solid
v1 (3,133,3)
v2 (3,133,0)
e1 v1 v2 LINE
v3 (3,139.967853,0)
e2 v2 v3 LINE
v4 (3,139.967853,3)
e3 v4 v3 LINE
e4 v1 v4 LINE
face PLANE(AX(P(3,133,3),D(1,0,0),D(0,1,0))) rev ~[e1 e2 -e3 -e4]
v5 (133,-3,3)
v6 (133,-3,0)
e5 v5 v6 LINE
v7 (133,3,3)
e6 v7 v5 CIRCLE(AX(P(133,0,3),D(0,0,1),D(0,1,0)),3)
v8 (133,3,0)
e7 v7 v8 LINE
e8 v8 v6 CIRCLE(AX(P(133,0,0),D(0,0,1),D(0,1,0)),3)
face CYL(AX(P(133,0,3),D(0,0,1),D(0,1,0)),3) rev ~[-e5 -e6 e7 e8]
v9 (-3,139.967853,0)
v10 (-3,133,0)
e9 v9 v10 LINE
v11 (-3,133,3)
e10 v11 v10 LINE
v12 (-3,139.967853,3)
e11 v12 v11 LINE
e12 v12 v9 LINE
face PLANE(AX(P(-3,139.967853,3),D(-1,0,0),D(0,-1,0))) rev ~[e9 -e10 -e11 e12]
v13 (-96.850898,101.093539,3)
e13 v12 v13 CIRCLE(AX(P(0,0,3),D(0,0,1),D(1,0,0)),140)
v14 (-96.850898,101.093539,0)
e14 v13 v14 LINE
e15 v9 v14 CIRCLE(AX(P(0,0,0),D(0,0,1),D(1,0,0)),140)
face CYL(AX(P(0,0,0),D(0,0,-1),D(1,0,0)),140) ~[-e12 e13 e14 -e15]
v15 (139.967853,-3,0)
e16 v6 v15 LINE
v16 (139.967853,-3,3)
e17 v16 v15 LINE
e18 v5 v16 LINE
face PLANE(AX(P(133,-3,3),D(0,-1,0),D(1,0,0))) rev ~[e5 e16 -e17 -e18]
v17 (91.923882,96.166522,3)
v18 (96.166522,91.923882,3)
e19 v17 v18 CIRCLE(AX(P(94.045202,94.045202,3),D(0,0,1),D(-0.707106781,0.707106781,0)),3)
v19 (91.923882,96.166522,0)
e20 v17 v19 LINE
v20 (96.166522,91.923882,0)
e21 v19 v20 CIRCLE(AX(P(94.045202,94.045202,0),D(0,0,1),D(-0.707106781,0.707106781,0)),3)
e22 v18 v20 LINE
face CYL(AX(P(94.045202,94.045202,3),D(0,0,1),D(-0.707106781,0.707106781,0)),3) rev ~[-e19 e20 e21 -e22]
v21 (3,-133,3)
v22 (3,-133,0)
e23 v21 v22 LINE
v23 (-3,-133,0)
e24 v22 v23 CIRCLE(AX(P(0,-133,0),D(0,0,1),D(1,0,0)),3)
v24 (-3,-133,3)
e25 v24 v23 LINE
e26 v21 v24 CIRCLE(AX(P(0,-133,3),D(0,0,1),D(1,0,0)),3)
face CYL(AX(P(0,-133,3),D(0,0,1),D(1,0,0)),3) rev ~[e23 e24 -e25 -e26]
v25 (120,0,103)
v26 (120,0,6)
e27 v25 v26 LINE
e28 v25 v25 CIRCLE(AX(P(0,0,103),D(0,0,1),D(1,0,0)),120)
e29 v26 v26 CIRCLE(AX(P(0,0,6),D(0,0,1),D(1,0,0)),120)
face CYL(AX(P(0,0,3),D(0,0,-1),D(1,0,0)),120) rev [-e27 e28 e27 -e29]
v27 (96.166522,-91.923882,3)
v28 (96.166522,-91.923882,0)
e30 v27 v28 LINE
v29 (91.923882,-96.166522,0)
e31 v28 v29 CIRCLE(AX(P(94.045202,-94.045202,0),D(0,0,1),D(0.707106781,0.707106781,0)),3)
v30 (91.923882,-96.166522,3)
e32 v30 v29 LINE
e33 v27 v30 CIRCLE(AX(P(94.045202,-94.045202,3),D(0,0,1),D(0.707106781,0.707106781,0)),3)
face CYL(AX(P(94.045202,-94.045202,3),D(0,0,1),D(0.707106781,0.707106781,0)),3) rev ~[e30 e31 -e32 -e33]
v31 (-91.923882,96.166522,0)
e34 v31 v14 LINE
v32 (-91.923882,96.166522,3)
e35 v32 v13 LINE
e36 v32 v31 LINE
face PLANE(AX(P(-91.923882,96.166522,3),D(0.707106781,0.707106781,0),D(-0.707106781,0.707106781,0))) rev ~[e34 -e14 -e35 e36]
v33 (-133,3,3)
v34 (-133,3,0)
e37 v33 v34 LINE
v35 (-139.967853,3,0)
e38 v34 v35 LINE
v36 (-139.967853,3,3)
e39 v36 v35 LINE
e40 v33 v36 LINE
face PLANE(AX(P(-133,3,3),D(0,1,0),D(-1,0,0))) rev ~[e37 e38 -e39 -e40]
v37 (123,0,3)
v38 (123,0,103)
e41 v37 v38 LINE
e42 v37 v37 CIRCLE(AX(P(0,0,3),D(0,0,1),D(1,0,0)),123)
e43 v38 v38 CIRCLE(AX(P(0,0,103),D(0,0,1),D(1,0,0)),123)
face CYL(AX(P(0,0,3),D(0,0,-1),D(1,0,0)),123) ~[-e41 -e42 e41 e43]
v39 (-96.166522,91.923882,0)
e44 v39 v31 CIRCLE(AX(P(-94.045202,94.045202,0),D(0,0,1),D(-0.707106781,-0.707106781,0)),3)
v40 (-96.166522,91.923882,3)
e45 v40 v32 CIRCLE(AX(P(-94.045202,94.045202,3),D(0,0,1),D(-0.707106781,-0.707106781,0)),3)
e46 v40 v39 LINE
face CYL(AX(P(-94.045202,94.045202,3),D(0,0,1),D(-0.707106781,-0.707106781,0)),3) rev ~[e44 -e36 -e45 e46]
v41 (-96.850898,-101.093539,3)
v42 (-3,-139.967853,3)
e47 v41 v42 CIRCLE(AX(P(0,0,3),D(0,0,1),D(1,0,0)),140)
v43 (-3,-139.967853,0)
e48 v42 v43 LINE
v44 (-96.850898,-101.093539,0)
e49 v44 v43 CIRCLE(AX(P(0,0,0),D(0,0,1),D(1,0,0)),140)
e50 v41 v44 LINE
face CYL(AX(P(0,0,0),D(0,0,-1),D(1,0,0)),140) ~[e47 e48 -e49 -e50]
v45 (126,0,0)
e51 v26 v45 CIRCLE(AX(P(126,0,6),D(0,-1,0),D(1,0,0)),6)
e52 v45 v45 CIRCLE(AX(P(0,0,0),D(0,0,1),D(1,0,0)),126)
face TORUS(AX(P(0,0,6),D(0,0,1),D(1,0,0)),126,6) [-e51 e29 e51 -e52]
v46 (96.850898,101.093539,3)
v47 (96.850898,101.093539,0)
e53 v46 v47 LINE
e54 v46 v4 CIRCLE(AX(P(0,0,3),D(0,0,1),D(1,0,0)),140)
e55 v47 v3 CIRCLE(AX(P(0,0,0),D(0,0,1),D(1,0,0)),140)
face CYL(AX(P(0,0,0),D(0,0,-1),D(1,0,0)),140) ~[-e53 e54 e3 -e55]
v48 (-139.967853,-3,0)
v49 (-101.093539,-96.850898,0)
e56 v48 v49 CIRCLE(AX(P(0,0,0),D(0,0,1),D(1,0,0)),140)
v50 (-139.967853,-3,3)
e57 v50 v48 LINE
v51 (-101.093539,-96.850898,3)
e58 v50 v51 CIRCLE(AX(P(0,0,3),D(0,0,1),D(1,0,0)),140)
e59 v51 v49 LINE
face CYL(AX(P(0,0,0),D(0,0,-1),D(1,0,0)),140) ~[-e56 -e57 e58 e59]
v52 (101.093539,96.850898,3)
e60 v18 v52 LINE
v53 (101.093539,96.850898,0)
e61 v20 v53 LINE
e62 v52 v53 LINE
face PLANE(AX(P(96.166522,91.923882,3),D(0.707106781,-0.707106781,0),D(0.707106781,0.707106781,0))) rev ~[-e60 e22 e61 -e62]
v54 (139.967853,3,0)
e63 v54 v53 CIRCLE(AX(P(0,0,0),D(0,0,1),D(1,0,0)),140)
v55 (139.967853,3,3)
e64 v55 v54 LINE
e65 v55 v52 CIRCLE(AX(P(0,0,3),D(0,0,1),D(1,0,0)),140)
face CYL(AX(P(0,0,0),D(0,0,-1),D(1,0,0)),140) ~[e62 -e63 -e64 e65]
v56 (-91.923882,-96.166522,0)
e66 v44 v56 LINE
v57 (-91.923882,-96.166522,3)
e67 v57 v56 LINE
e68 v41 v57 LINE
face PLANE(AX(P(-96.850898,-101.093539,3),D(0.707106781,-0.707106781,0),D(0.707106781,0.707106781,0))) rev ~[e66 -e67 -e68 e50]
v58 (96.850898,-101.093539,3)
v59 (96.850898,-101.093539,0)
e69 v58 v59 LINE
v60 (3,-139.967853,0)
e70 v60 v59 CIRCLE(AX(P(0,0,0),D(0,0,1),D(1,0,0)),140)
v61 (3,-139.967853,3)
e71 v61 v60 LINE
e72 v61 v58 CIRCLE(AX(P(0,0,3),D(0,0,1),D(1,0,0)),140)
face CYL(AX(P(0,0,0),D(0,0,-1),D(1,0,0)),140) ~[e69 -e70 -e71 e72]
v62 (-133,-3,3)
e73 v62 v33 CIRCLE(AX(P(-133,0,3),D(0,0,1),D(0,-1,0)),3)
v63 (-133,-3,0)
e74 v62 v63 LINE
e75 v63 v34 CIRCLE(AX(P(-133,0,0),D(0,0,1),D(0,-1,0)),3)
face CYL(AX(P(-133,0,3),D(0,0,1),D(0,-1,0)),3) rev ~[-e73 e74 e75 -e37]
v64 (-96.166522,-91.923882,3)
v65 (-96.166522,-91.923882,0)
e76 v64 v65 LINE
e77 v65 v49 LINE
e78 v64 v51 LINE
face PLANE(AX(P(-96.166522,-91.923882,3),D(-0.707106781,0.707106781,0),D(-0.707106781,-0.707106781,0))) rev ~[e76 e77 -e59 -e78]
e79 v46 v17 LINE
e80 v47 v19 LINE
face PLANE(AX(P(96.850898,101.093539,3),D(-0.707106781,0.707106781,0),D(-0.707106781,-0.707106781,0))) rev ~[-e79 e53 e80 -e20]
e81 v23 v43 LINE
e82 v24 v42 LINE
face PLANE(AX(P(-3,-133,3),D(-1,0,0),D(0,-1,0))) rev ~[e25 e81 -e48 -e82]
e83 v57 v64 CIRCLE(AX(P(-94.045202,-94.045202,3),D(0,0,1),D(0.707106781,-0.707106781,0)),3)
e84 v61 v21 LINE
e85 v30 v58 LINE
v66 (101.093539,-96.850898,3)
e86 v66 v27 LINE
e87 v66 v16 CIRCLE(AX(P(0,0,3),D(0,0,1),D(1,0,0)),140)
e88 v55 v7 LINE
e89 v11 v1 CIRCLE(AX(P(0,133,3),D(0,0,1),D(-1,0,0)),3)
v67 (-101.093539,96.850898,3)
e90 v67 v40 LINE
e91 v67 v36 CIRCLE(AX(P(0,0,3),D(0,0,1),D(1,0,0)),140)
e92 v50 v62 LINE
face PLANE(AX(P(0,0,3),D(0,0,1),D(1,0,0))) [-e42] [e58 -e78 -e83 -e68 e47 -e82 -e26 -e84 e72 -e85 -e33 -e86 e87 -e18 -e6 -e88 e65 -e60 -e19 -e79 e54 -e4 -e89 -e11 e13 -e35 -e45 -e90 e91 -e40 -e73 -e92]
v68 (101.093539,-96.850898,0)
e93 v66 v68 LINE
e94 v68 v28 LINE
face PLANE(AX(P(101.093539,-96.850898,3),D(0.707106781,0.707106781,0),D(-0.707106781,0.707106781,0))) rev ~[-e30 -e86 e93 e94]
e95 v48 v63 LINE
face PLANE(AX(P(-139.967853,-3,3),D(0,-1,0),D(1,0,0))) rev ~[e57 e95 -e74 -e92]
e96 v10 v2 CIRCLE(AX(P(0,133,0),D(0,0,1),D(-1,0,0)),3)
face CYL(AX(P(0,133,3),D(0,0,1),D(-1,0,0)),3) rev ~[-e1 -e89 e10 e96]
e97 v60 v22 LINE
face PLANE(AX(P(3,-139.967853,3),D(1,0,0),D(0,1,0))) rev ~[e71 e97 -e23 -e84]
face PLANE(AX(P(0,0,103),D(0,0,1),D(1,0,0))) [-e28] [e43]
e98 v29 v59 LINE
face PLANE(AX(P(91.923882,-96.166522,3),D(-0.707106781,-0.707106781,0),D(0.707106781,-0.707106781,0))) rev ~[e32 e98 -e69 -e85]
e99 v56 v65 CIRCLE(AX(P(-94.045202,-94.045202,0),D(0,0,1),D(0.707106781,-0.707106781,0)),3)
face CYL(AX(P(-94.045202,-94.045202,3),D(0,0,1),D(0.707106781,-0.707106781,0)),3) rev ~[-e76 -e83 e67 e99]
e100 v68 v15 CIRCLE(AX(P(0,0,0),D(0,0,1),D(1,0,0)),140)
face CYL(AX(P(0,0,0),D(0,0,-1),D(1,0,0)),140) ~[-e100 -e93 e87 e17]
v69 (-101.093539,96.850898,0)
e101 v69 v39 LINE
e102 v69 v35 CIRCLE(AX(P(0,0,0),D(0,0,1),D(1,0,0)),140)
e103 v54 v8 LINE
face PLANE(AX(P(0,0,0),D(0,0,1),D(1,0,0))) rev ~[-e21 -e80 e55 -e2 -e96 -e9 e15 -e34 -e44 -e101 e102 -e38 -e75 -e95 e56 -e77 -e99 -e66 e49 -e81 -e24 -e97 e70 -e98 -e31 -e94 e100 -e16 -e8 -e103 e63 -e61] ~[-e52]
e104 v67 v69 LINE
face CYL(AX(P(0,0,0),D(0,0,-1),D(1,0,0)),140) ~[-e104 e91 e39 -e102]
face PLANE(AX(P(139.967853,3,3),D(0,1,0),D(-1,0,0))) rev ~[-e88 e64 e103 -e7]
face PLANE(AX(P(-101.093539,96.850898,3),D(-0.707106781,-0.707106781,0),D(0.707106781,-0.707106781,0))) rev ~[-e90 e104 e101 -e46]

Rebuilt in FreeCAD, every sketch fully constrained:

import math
import FreeCAD as App
import Part
import Sketcher


def edges_at(feature, points):
    """Names of the edges that pass closest to the given points."""
    edges = feature.Shape.Edges
    near = lambda p: min(range(len(edges)), key=lambda i: edges[i].distToShape(Part.Vertex(*p))[0])
    return sorted({f"Edge{near(p) + 1}" for p in points})

doc = App.newDocument("Part")
body = doc.addObject("PartDesign::Body", "Body")

# Sketch on XY plane
sketch1 = body.newObject("Sketcher::SketchObject", "Sketch")
sketch1.AttachmentSupport = (doc.getObject("XY_Plane"), [""])
sketch1.MapMode = "FlatFace"
sketch1.addGeometry(Part.Circle(App.Vector(0, 0, 0), App.Vector(0, 0, 1), 140), False)
sketch1.addGeometry(Part.Circle(App.Vector(0, 0, 0), App.Vector(0, 0, 1), 120), False)
sketch1.addConstraint(Sketcher.Constraint("Coincident", 0, 3, -1, 1))
sketch1.addConstraint(Sketcher.Constraint("Coincident", 1, 3, -1, 1))
sketch1.addConstraint(Sketcher.Constraint("Diameter", 0, 280.0))
sketch1.addConstraint(Sketcher.Constraint("Diameter", 1, 240.0))
pad1 = body.newObject("PartDesign::Pad", "Pad")
pad1.Profile = sketch1
pad1.Length = 3

# Sketch on XY plane
sketch2 = body.newObject("Sketcher::SketchObject", "Sketch001")
sketch2.AttachmentSupport = (doc.getObject("XY_Plane"), [""])
sketch2.MapMode = "FlatFace"
sketch2.AttachmentOffset = App.Placement(App.Vector(0, 0, 3), App.Rotation())
sketch2.addGeometry(Part.Circle(App.Vector(0, 0, 0), App.Vector(0, 0, 1), 123), False)
sketch2.addGeometry(Part.Circle(App.Vector(0, 0, 0), App.Vector(0, 0, 1), 120), False)
sketch2.addConstraint(Sketcher.Constraint("Coincident", 0, 3, -1, 1))
sketch2.addConstraint(Sketcher.Constraint("Coincident", 1, 3, -1, 1))
sketch2.addConstraint(Sketcher.Constraint("Diameter", 0, 246.0))
sketch2.addConstraint(Sketcher.Constraint("Diameter", 1, 240.0))
pad2 = body.newObject("PartDesign::Pad", "Pad001")
pad2.Profile = sketch2
pad2.Length = 100
doc.recompute()

fillet = body.newObject("PartDesign::Fillet", "Fillet")
fillet.Base = (pad2, edges_at(pad2, [(-120, 0, 0)]))
fillet.Radius = 6

# Sketch on XY plane
sketch3 = body.newObject("Sketcher::SketchObject", "Sketch002")
sketch3.AttachmentSupport = (doc.getObject("XY_Plane"), [""])
sketch3.MapMode = "FlatFace"
sketch3.AttachmentOffset = App.Placement(App.Vector(0, 0, 3), App.Rotation())
sketch3.addGeometry(Part.ArcOfCircle(Part.Circle(App.Vector(0, 0, 0), App.Vector(0, 0, 1), 140), math.radians(-136.23), math.radians(-133.77)), False)
sketch3.addGeometry(Part.LineSegment(App.Vector(-96.9, -101.1, 0), App.Vector(-91.9, -96.2, 0)), False)
sketch3.addGeometry(Part.ArcOfCircle(Part.Circle(App.Vector(-94, -94, 0), App.Vector(0, 0, 1), 3), math.radians(-45), math.radians(135)), False)
sketch3.addGeometry(Part.LineSegment(App.Vector(-96.2, -91.9, 0), App.Vector(-101.1, -96.9, 0)), False)
sketch3.addGeometry(Part.ArcOfCircle(Part.Circle(App.Vector(0, 0, 0), App.Vector(0, 0, 1), 140), math.radians(-90), math.radians(-88.77)), False)
sketch3.addGeometry(Part.LineSegment(App.Vector(3, -140, 0), App.Vector(3, -133, 0)), False)
sketch3.addGeometry(Part.ArcOfCircle(Part.Circle(App.Vector(0, -133, 0), App.Vector(0, 0, 1), 3), math.radians(0), math.radians(180)), False)
sketch3.addGeometry(Part.LineSegment(App.Vector(-3, -133, 0), App.Vector(-3, -140, 0)), False)
sketch3.addGeometry(Part.ArcOfCircle(Part.Circle(App.Vector(0, 0, 0), App.Vector(0, 0, 1), 140), math.radians(-91.23), math.radians(-90)), False)
sketch3.addGeometry(Part.LineSegment(App.Vector(-133, 3, 0), App.Vector(-140, 3, 0)), False)
sketch3.addGeometry(Part.ArcOfCircle(Part.Circle(App.Vector(0, 0, 0), App.Vector(0, 0, 1), 140), math.radians(178.77), math.radians(181.23)), False)
sketch3.addGeometry(Part.LineSegment(App.Vector(-140, -3, 0), App.Vector(-133, -3, 0)), False)
sketch3.addGeometry(Part.ArcOfCircle(Part.Circle(App.Vector(-133, 0, 0), App.Vector(0, 0, 1), 3), math.radians(-90), math.radians(90)), False)
sketch3.addGeometry(Part.LineSegment(App.Vector(-91.9, 96.2, 0), App.Vector(-96.9, 101.1, 0)), False)
sketch3.addGeometry(Part.ArcOfCircle(Part.Circle(App.Vector(0, 0, 0), App.Vector(0, 0, 1), 140), math.radians(133.77), math.radians(136.23)), False)
sketch3.addGeometry(Part.LineSegment(App.Vector(-101.1, 96.9, 0), App.Vector(-96.2, 91.9, 0)), False)
sketch3.addGeometry(Part.ArcOfCircle(Part.Circle(App.Vector(-94, 94, 0), App.Vector(0, 0, 1), 3), math.radians(-135), math.radians(45)), False)
sketch3.addGeometry(Part.LineSegment(App.Vector(3, 133, 0), App.Vector(3, 140, 0)), False)
sketch3.addGeometry(Part.ArcOfCircle(Part.Circle(App.Vector(0, 0, 0), App.Vector(0, 0, 1), 140), math.radians(88.77), math.radians(91.23)), False)
sketch3.addGeometry(Part.LineSegment(App.Vector(-3, 140, 0), App.Vector(-3, 133, 0)), False)
sketch3.addGeometry(Part.ArcOfCircle(Part.Circle(App.Vector(0, 133, 0), App.Vector(0, 0, 1), 3), math.radians(180), math.radians(360)), False)
sketch3.addGeometry(Part.ArcOfCircle(Part.Circle(App.Vector(0, 0, 0), App.Vector(0, 0, 1), 140), math.radians(-46.23), math.radians(-43.77)), False)
sketch3.addGeometry(Part.LineSegment(App.Vector(101.1, -96.9, 0), App.Vector(96.2, -91.9, 0)), False)
sketch3.addGeometry(Part.ArcOfCircle(Part.Circle(App.Vector(94, -94, 0), App.Vector(0, 0, 1), 3), math.radians(45), math.radians(225)), False)
sketch3.addGeometry(Part.LineSegment(App.Vector(91.9, -96.2, 0), App.Vector(96.9, -101.1, 0)), False)
sketch3.addGeometry(Part.ArcOfCircle(Part.Circle(App.Vector(0, 0, 0), App.Vector(0, 0, 1), 140), math.radians(-1.23), math.radians(0)), False)
sketch3.addGeometry(Part.ArcOfCircle(Part.Circle(App.Vector(0, 0, 0), App.Vector(0, 0, 1), 140), math.radians(0), math.radians(1.23)), False)
sketch3.addGeometry(Part.LineSegment(App.Vector(140, 3, 0), App.Vector(133, 3, 0)), False)
sketch3.addGeometry(Part.ArcOfCircle(Part.Circle(App.Vector(133, 0, 0), App.Vector(0, 0, 1), 3), math.radians(90), math.radians(270)), False)
sketch3.addGeometry(Part.LineSegment(App.Vector(133, -3, 0), App.Vector(140, -3, 0)), False)
sketch3.addGeometry(Part.LineSegment(App.Vector(96.2, 91.9, 0), App.Vector(101.1, 96.9, 0)), False)
sketch3.addGeometry(Part.ArcOfCircle(Part.Circle(App.Vector(0, 0, 0), App.Vector(0, 0, 1), 140), math.radians(43.77), math.radians(46.23)), False)
sketch3.addGeometry(Part.LineSegment(App.Vector(96.9, 101.1, 0), App.Vector(91.9, 96.2, 0)), False)
sketch3.addGeometry(Part.ArcOfCircle(Part.Circle(App.Vector(94, 94, 0), App.Vector(0, 0, 1), 3), math.radians(135), math.radians(315)), False)
sketch3.addConstraint(Sketcher.Constraint("Coincident", 0, 2, 1, 1))
sketch3.addConstraint(Sketcher.Constraint("Tangent", 1, 2, 2, 1))
sketch3.addConstraint(Sketcher.Constraint("Tangent", 2, 2, 3, 1))
sketch3.addConstraint(Sketcher.Constraint("Coincident", 3, 2, 0, 1))
sketch3.addConstraint(Sketcher.Constraint("Coincident", 4, 2, 5, 1))
sketch3.addConstraint(Sketcher.Constraint("Tangent", 5, 2, 6, 1))
sketch3.addConstraint(Sketcher.Constraint("Tangent", 6, 2, 7, 1))
sketch3.addConstraint(Sketcher.Constraint("Coincident", 7, 2, 8, 1))
sketch3.addConstraint(Sketcher.Constraint("Tangent", 8, 2, 4, 1))
sketch3.addConstraint(Sketcher.Constraint("Coincident", 9, 2, 10, 1))
sketch3.addConstraint(Sketcher.Constraint("Coincident", 10, 2, 11, 1))
sketch3.addConstraint(Sketcher.Constraint("Tangent", 11, 2, 12, 1))
sketch3.addConstraint(Sketcher.Constraint("Tangent", 12, 2, 9, 1))
sketch3.addConstraint(Sketcher.Constraint("Coincident", 13, 2, 14, 1))
sketch3.addConstraint(Sketcher.Constraint("Coincident", 14, 2, 15, 1))
sketch3.addConstraint(Sketcher.Constraint("Tangent", 15, 2, 16, 1))
sketch3.addConstraint(Sketcher.Constraint("Tangent", 16, 2, 13, 1))
sketch3.addConstraint(Sketcher.Constraint("Coincident", 17, 2, 18, 1))
sketch3.addConstraint(Sketcher.Constraint("Coincident", 18, 2, 19, 1))
sketch3.addConstraint(Sketcher.Constraint("Tangent", 19, 2, 20, 1))
sketch3.addConstraint(Sketcher.Constraint("Tangent", 20, 2, 17, 1))
sketch3.addConstraint(Sketcher.Constraint("Coincident", 21, 2, 22, 1))
sketch3.addConstraint(Sketcher.Constraint("Tangent", 22, 2, 23, 1))
sketch3.addConstraint(Sketcher.Constraint("Tangent", 23, 2, 24, 1))
sketch3.addConstraint(Sketcher.Constraint("Coincident", 24, 2, 21, 1))
sketch3.addConstraint(Sketcher.Constraint("Tangent", 25, 2, 26, 1))
sketch3.addConstraint(Sketcher.Constraint("Coincident", 26, 2, 27, 1))
sketch3.addConstraint(Sketcher.Constraint("Tangent", 27, 2, 28, 1))
sketch3.addConstraint(Sketcher.Constraint("Tangent", 28, 2, 29, 1))
sketch3.addConstraint(Sketcher.Constraint("Coincident", 29, 2, 25, 1))
sketch3.addConstraint(Sketcher.Constraint("Coincident", 30, 2, 31, 1))
sketch3.addConstraint(Sketcher.Constraint("Coincident", 31, 2, 32, 1))
sketch3.addConstraint(Sketcher.Constraint("Tangent", 32, 2, 33, 1))
sketch3.addConstraint(Sketcher.Constraint("Tangent", 33, 2, 30, 1))
sketch3.addConstraint(Sketcher.Constraint("Vertical", 5))
sketch3.addConstraint(Sketcher.Constraint("Vertical", 7))
sketch3.addConstraint(Sketcher.Constraint("Horizontal", 9))
sketch3.addConstraint(Sketcher.Constraint("Horizontal", 11))
sketch3.addConstraint(Sketcher.Constraint("Vertical", 17))
sketch3.addConstraint(Sketcher.Constraint("Vertical", 19))
sketch3.addConstraint(Sketcher.Constraint("Horizontal", 27))
sketch3.addConstraint(Sketcher.Constraint("Horizontal", 29))
sketch3.addConstraint(Sketcher.Constraint("Coincident", 0, 3, -1, 1))
sketch3.addConstraint(Sketcher.Constraint("Coincident", 4, 3, -1, 1))
sketch3.addConstraint(Sketcher.Constraint("Coincident", 10, 3, -1, 1))
sketch3.addConstraint(Sketcher.Constraint("Coincident", 14, 3, -1, 1))
sketch3.addConstraint(Sketcher.Constraint("Coincident", 18, 3, -1, 1))
sketch3.addConstraint(Sketcher.Constraint("Coincident", 21, 3, -1, 1))
sketch3.addConstraint(Sketcher.Constraint("Coincident", 25, 3, -1, 1))
sketch3.addConstraint(Sketcher.Constraint("Coincident", 31, 3, -1, 1))
sketch3.addConstraint(Sketcher.Constraint("Equal", 0, 4))
sketch3.addConstraint(Sketcher.Constraint("Equal", 2, 6))
sketch3.addConstraint(Sketcher.Constraint("Equal", 4, 8))
sketch3.addConstraint(Sketcher.Constraint("Equal", 8, 10))
sketch3.addConstraint(Sketcher.Constraint("Equal", 6, 12))
sketch3.addConstraint(Sketcher.Constraint("Equal", 10, 14))
sketch3.addConstraint(Sketcher.Constraint("Equal", 12, 16))
sketch3.addConstraint(Sketcher.Constraint("Equal", 14, 18))
sketch3.addConstraint(Sketcher.Constraint("Equal", 16, 20))
sketch3.addConstraint(Sketcher.Constraint("Equal", 18, 21))
sketch3.addConstraint(Sketcher.Constraint("Equal", 20, 23))
sketch3.addConstraint(Sketcher.Constraint("Equal", 21, 25))
sketch3.addConstraint(Sketcher.Constraint("Equal", 25, 26))
sketch3.addConstraint(Sketcher.Constraint("Equal", 23, 28))
sketch3.addConstraint(Sketcher.Constraint("Equal", 26, 31))
sketch3.addConstraint(Sketcher.Constraint("Equal", 28, 33))
sketch3.addConstraint(Sketcher.Constraint("Symmetric", 6, 3, 20, 3, -1, 1))
sketch3.addConstraint(Sketcher.Constraint("Symmetric", 16, 3, 23, 3, -1, 1))
sketch3.addConstraint(Sketcher.Constraint("Symmetric", 12, 3, 28, 3, -1, 1))
sketch3.addConstraint(Sketcher.Constraint("Symmetric", 2, 3, 33, 3, -1, 1))
sketch3.addConstraint(Sketcher.Constraint("Symmetric", 2, 3, 23, 3, -2))
sketch3.addConstraint(Sketcher.Constraint("PointOnObject", 6, 3, -2))
sketch3.addConstraint(Sketcher.Constraint("PointOnObject", 12, 3, -1))
sketch3.addConstraint(Sketcher.Constraint("PointOnObject", 8, 2, -2))
sketch3.addConstraint(Sketcher.Constraint("PointOnObject", 25, 2, -1))
sketch3.addConstraint(Sketcher.Constraint("Parallel", 1, 3))
sketch3.addConstraint(Sketcher.Constraint("Perpendicular", 3, 13))
sketch3.addConstraint(Sketcher.Constraint("Parallel", 13, 15))
sketch3.addConstraint(Sketcher.Constraint("Parallel", 15, 22))
sketch3.addConstraint(Sketcher.Constraint("Parallel", 22, 24))
sketch3.addConstraint(Sketcher.Constraint("Perpendicular", 24, 30))
sketch3.addConstraint(Sketcher.Constraint("Parallel", 30, 32))
sketch3.addConstraint(Sketcher.Constraint("Horizontal", 3, 2, 21, 2))
sketch3.addConstraint(Sketcher.Constraint("Equal", 29, 5))
sketch3.addConstraint(Sketcher.Constraint("Equal", 1, 3))
sketch3.addConstraint(Sketcher.Constraint("Radius", 0, 140.0))
sketch3.addConstraint(Sketcher.Constraint("Radius", 2, 3.0))
sketch3.addConstraint(Sketcher.Constraint("DistanceY", 6, 3, -1, 1, 133.0))
sketch3.addConstraint(Sketcher.Constraint("DistanceX", 2, 3, -1, 1, 94.045202))
pocket1 = body.newObject("PartDesign::Pocket", "Pocket")
pocket1.Profile = sketch3
pocket1.Type = "ThroughAll"

doc.recompute()
